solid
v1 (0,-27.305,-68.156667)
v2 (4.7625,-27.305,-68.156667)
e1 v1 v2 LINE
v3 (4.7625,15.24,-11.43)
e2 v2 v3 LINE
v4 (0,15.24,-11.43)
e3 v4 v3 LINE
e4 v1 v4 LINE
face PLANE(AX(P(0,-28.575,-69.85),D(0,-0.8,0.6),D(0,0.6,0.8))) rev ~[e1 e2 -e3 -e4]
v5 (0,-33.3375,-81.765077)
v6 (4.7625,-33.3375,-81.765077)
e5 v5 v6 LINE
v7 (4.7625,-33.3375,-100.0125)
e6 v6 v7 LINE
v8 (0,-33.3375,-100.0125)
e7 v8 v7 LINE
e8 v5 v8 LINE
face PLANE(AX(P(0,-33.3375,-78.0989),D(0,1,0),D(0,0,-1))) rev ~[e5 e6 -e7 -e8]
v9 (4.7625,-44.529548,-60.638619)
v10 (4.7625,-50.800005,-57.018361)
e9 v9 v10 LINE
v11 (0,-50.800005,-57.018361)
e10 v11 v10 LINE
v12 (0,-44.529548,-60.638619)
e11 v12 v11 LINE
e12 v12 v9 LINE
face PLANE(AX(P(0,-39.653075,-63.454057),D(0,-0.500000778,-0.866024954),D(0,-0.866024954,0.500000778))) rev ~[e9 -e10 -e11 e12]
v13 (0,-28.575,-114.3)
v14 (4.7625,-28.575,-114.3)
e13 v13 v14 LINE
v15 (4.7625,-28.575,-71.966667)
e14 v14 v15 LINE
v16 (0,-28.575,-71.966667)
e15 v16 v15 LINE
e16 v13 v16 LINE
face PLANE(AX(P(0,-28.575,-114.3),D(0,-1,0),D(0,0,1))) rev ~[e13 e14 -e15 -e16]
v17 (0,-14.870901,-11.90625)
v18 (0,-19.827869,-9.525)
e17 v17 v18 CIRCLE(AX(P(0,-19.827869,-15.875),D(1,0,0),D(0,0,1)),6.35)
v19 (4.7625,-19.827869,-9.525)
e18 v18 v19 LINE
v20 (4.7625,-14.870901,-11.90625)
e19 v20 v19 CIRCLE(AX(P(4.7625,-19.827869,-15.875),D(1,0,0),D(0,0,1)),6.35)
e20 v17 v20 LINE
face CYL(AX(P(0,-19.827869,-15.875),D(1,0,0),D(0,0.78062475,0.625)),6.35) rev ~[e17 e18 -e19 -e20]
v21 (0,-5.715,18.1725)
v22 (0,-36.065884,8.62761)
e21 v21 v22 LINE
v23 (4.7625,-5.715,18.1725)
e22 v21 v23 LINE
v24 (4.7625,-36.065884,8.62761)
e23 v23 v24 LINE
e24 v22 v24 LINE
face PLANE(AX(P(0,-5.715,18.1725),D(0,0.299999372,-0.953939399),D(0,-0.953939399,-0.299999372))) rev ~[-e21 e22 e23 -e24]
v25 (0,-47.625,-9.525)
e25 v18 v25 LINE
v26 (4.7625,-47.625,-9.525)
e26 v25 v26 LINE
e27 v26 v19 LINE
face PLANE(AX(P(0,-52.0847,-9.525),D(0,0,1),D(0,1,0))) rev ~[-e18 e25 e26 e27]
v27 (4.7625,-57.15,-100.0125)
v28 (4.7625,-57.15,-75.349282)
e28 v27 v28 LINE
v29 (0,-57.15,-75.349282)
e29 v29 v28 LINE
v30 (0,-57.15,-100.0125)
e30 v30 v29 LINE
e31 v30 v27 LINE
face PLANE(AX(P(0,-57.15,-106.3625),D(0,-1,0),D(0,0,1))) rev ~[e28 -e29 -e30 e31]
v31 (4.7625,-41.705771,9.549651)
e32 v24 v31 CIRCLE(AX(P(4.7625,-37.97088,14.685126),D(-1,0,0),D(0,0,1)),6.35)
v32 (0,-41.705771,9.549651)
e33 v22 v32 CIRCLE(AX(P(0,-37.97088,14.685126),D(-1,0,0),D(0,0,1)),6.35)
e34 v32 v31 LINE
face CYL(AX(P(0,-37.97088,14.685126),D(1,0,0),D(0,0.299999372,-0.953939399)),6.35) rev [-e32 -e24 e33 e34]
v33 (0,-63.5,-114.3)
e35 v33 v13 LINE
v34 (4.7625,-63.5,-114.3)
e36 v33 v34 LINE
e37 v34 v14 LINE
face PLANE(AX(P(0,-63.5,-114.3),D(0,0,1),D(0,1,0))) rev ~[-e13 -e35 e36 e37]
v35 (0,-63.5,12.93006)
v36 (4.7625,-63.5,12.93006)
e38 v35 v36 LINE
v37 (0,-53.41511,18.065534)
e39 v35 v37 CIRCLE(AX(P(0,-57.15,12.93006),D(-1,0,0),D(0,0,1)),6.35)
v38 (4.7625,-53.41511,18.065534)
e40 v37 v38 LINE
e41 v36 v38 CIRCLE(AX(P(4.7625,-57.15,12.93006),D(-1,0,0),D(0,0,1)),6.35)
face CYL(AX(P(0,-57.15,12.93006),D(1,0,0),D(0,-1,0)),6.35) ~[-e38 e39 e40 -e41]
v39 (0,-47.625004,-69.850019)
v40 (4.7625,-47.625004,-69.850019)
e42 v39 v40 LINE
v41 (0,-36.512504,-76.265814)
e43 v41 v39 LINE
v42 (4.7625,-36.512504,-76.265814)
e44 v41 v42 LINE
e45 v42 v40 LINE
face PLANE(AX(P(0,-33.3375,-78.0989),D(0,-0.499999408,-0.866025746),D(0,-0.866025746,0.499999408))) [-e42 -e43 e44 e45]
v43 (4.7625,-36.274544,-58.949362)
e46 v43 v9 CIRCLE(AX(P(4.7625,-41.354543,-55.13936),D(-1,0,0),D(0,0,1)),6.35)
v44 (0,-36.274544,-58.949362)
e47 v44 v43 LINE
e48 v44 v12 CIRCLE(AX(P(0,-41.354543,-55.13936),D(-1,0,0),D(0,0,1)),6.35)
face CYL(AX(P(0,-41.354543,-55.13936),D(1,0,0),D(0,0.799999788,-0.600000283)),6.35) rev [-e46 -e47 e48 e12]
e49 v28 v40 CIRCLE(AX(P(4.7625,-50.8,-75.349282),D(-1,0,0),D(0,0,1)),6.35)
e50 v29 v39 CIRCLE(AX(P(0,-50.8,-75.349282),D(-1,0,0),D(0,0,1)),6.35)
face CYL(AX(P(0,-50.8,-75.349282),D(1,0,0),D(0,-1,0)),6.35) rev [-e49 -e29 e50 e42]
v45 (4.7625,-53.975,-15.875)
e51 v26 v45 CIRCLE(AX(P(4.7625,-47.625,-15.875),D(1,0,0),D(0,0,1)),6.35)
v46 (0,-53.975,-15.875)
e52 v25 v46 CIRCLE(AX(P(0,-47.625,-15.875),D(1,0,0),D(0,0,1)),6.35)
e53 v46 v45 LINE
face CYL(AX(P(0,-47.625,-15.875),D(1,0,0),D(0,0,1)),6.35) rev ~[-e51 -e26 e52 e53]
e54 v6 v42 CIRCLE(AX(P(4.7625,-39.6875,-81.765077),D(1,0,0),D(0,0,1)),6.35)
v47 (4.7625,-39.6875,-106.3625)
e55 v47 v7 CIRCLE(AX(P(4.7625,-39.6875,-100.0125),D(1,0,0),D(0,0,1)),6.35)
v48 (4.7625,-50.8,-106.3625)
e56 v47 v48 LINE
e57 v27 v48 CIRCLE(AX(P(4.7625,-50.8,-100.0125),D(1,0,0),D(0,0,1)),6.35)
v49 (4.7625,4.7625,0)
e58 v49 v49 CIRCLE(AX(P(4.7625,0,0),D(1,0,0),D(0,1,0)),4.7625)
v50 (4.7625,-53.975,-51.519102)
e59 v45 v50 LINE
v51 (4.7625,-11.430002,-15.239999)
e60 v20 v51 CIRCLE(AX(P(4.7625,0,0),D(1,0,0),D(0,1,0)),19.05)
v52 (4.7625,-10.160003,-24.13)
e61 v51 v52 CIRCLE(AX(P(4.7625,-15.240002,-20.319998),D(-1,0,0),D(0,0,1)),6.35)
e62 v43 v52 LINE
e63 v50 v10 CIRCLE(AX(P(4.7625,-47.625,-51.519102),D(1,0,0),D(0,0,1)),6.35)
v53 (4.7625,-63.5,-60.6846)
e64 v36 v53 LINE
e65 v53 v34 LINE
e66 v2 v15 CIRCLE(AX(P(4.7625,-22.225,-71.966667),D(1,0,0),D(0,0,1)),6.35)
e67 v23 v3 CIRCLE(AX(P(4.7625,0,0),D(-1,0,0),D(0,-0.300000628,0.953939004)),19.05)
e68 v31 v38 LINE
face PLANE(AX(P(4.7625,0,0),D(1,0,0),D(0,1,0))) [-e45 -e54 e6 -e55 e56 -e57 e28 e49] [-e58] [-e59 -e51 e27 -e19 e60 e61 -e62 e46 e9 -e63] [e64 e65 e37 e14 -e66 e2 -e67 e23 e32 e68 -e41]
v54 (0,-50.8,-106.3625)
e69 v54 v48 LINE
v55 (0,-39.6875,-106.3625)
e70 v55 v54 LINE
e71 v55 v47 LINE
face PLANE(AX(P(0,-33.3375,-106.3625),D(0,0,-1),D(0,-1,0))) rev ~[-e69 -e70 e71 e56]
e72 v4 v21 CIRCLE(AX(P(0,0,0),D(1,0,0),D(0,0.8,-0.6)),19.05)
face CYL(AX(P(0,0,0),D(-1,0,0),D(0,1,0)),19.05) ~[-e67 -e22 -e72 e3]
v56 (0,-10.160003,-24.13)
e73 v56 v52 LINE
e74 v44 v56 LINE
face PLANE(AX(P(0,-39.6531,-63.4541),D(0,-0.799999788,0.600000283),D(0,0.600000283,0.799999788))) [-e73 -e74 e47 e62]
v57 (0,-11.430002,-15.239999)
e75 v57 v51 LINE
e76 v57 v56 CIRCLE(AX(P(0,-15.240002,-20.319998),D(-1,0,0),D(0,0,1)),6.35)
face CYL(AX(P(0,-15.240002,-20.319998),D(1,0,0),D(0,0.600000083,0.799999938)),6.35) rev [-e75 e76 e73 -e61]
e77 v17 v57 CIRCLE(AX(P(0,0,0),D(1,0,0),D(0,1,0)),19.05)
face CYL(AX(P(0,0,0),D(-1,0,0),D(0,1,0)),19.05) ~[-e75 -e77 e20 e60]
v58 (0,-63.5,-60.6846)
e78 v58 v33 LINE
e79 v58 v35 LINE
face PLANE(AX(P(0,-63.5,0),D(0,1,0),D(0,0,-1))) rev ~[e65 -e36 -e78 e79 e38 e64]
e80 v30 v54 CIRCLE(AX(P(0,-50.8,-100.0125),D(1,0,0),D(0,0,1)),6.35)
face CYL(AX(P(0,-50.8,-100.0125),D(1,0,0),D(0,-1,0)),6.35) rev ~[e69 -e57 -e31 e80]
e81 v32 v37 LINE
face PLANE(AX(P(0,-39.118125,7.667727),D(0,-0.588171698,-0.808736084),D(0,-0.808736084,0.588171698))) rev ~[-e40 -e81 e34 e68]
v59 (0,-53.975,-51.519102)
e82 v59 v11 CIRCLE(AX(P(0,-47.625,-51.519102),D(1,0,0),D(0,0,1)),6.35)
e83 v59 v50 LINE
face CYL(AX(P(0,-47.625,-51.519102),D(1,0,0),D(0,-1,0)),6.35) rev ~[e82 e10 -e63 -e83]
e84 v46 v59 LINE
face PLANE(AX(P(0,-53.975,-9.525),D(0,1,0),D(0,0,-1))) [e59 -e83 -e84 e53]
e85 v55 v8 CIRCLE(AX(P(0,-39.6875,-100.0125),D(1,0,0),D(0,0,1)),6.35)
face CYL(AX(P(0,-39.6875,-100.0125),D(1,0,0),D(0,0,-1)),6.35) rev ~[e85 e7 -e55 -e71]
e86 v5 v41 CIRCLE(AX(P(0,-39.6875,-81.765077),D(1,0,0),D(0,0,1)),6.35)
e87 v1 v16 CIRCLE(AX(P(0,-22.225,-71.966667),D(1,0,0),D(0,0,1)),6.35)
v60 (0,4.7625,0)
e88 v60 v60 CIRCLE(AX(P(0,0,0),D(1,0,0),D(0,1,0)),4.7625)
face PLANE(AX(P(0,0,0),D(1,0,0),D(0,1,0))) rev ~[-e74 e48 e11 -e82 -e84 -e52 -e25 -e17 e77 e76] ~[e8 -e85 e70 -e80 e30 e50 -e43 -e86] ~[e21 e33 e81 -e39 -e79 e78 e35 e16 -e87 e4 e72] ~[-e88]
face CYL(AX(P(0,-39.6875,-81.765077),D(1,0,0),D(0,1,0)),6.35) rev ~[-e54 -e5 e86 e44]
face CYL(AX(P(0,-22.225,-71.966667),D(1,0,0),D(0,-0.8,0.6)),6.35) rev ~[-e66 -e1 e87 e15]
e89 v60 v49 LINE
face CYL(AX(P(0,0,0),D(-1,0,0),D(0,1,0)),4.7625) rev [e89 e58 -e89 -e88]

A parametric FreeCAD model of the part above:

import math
import FreeCAD as App
import Part
import Sketcher
from FreeCAD import Vector
Q = App.Units.Quantity


def edges_at(feature, points):
    """Names of the edges that pass closest to the given points."""
    edges = feature.Shape.Edges
    near = lambda p: min(range(len(edges)), key=lambda i: edges[i].distToShape(Part.Vertex(*p))[0])
    return sorted({f"Edge{near(p) + 1}" for p in points})

doc = App.newDocument("Part")
params = doc.addObject("Spreadsheet::Sheet", "Params")
for row, (alias, value) in enumerate([
    ("sketch1_radius", "0.75 in"),
    ("sketch1_diameter", "0.375 in"),
    ("sketch1_height", "1.75 in"),
    ("sketch1_width", "1.375 in"),
    ("sketch1_height2", "1.654 in"),
    ("pad1_length", "0.1875 in"),
    ("fillet_radius", "0.25 in"),
    ("fillet2_radius", "0.25 in"),
], start=1):
    params.set(f"A{row}", alias)
    params.set(f"B{row}", "=" + value)
    params.setAlias(f"B{row}", alias)

body = doc.addObject("PartDesign::Body", "Body")

sketch1 = doc.addObject("Sketcher::SketchObject", "Sketch")
body.addObject(sketch1)
sketch1.AttachmentSupport = (doc.YZ_Plane, [""])
sketch1.MapMode = "FlatFace"
sketch1.addGeometry([
    Part.ArcOfCircle(Part.Circle(Vector(0, 0, 0), Vector(0, 0, 1), 19.1), math.radians(-37), math.radians(107)),
    Part.LineSegment(Vector(-5.7, 18.2, 0), Vector(-39.1, 7.7, 0)),
    Part.LineSegment(Vector(-39.1, 7.7, 0), Vector(-63.5, 25.4, 0)),
    Part.LineSegment(Vector(-63.5, 25.4, 0), Vector(-63.5, -60.7, 0)),
    Part.LineSegment(Vector(-63.5, -60.7, 0), Vector(-63.5, -114.3, 0)),
    Part.LineSegment(Vector(-63.5, -114.3, 0), Vector(-28.6, -114.3, 0)),
    Part.LineSegment(Vector(-28.6, -114.3, 0), Vector(-28.6, -69.8, 0)),
    Part.LineSegment(Vector(-28.6, -69.8, 0), Vector(15.2, -11.4, 0)),
    Part.ArcOfCircle(Part.Circle(Vector(0, 0, 0), Vector(0, 0, 1), 19.1), math.radians(-150), math.radians(-107)),
    Part.LineSegment(Vector(-5.7, -18.2, 0), Vector(-39.7, -63.5, 0)),
    Part.LineSegment(Vector(-39.7, -63.5, 0), Vector(-54, -55.2, 0)),
    Part.LineSegment(Vector(-54, -55.2, 0), Vector(-54, -9.5, 0)),
    Part.LineSegment(Vector(-54, -9.5, 0), Vector(-16.5, -9.5, 0)),
    Part.Circle(Vector(0, 0, 0), Vector(0, 0, 1), 4.8),
    Part.LineSegment(Vector(-57.2, -64.4, 0), Vector(-33.3, -78.1, 0)),
    Part.LineSegment(Vector(-33.3, -78.1, 0), Vector(-33.3, -106.4, 0)),
    Part.LineSegment(Vector(-33.3, -106.4, 0), Vector(-57.1, -106.4, 0)),
    Part.LineSegment(Vector(-57.1, -106.4, 0), Vector(-57.1, -64.4, 0)),
], False)
sketch1.addConstraint([
    Sketcher.Constraint("Tangent", 0, 2, 1, 1),
    Sketcher.Constraint("Coincident", 1, 2, 2, 1),
    Sketcher.Constraint("Coincident", 2, 2, 3, 1),
    Sketcher.Constraint("Coincident", 3, 2, 4, 1),
    Sketcher.Constraint("Coincident", 4, 2, 5, 1),
    Sketcher.Constraint("Coincident", 5, 2, 6, 1),
    Sketcher.Constraint("Coincident", 6, 2, 7, 1),
    Sketcher.Constraint("Tangent", 7, 2, 0, 1),
    Sketcher.Constraint("Coincident", 8, 2, 9, 1),
    Sketcher.Constraint("Coincident", 9, 2, 10, 1),
    Sketcher.Constraint("Coincident", 10, 2, 11, 1),
    Sketcher.Constraint("Coincident", 11, 2, 12, 1),
    Sketcher.Constraint("Coincident", 12, 2, 8, 1),
    Sketcher.Constraint("Coincident", 14, 2, 15, 1),
    Sketcher.Constraint("Coincident", 15, 2, 16, 1),
    Sketcher.Constraint("Coincident", 16, 2, 17, 1),
    Sketcher.Constraint("Coincident", 17, 2, 14, 1),
    Sketcher.Constraint("Vertical", 3),
    Sketcher.Constraint("Vertical", 4),
    Sketcher.Constraint("Horizontal", 5),
    Sketcher.Constraint("Vertical", 6),
    Sketcher.Constraint("Vertical", 11),
    Sketcher.Constraint("Horizontal", 12),
    Sketcher.Constraint("Vertical", 15),
    Sketcher.Constraint("Horizontal", 16),
    Sketcher.Constraint("Vertical", 17),
    Sketcher.Constraint("Coincident", 0, 3, -1, 1),
    Sketcher.Constraint("Coincident", 8, 3, -1, 1),
    Sketcher.Constraint("Coincident", 13, 3, -1, 1),
    Sketcher.Constraint("Equal", 0, 8),
    Sketcher.Constraint("Parallel", 7, 9),
    Sketcher.Constraint("Parallel", 10, 14),
    Sketcher.Constraint("Radius", 0, Q("0.75 in")),
    Sketcher.Constraint("Diameter", 13, Q("0.375 in")),
    Sketcher.Constraint("DistanceY", -1, 1, 2, 2, Q("1 in")),
    Sketcher.Constraint("DistanceX", 10, 2, 6, 2, Q("1 in")),
    Sketcher.Constraint("DistanceY", 6, 1, 6, 2, Q("1.75 in")),
    Sketcher.Constraint("DistanceX", 2, 2, -1, 1, Q("2.5 in")),
    Sketcher.Constraint("DistanceY", 4, 2, -1, 1, Q("4.5 in")),
    Sketcher.Constraint("DistanceX", 5, 1, 5, 2, Q("1.375 in")),
    Sketcher.Constraint("DistanceX", 4, 2, 16, 2, Q("0.25 in")),
    Sketcher.Constraint("DistanceY", 11, 2, -1, 1, Q("0.375 in")),
    Sketcher.Constraint("Angle", 10, Q("150 deg")),
    Sketcher.Constraint("DistanceX", 14, 2, 6, 2, Q("0.1875 in")),
    Sketcher.Constraint("DistanceY", 5, 2, 15, 2, Q("0.3125 in")),
    Sketcher.Constraint("DistanceY", 17, 1, 17, 2, Q("1.654 in")),
    Sketcher.Constraint("DistanceX", 0, 2, -1, 1, Q("0.225 in")),
    Sketcher.Constraint("DistanceY", 3, 2, 3, 1, 86.0846),
    Sketcher.Constraint("DistanceY", 11, 1, 11, 2, 45.6603),
    Sketcher.Constraint("DistanceY", 9, 2, -1, 1, Q("2.4982 in")),
    Sketcher.Constraint("Distance", 1, 35.016),
])
sketch1.setExpression("Constraints[32]", "Params.sketch1_radius")
sketch1.setExpression("Constraints[33]", "Params.sketch1_diameter")
sketch1.setExpression("Constraints[36]", "Params.sketch1_height")
sketch1.setExpression("Constraints[39]", "Params.sketch1_width")
sketch1.setExpression("Constraints[45]", "Params.sketch1_height2")
pad1 = doc.addObject("PartDesign::Pad", "Pad")
body.addObject(pad1)
pad1.Profile = sketch1
pad1.setExpression("Length", "Params.pad1_length")
doc.recompute()

fillet = doc.addObject("PartDesign::Fillet", "Fillet")
body.addObject(fillet)
fillet.Base = (pad1, edges_at(pad1, [
    (2.381, -5.696, -18.178),
    (2.381, -16.498, -9.525),
    (2.381, -39.653, -63.454),
    (2.381, -53.975, -9.525),
    (2.381, -53.975, -55.185),
    (2.381, -57.15, -64.351),
    (2.381, -33.337, -78.099),
    (2.381, -33.337, -106.362),
    (2.381, -57.15, -106.362),
    (2.381, -28.575, -69.85),
]))
fillet.setExpression("Radius", "Params.fillet_radius")
doc.recompute()

fillet2 = doc.addObject("PartDesign::Fillet", "Fillet001")
body.addObject(fillet2)
fillet2.Base = (fillet, edges_at(fillet, [(2.381, -63.5, 25.4), (2.381, -39.118, 7.668)]))
fillet2.setExpression("Radius", "Params.fillet2_radius")

doc.recompute()
